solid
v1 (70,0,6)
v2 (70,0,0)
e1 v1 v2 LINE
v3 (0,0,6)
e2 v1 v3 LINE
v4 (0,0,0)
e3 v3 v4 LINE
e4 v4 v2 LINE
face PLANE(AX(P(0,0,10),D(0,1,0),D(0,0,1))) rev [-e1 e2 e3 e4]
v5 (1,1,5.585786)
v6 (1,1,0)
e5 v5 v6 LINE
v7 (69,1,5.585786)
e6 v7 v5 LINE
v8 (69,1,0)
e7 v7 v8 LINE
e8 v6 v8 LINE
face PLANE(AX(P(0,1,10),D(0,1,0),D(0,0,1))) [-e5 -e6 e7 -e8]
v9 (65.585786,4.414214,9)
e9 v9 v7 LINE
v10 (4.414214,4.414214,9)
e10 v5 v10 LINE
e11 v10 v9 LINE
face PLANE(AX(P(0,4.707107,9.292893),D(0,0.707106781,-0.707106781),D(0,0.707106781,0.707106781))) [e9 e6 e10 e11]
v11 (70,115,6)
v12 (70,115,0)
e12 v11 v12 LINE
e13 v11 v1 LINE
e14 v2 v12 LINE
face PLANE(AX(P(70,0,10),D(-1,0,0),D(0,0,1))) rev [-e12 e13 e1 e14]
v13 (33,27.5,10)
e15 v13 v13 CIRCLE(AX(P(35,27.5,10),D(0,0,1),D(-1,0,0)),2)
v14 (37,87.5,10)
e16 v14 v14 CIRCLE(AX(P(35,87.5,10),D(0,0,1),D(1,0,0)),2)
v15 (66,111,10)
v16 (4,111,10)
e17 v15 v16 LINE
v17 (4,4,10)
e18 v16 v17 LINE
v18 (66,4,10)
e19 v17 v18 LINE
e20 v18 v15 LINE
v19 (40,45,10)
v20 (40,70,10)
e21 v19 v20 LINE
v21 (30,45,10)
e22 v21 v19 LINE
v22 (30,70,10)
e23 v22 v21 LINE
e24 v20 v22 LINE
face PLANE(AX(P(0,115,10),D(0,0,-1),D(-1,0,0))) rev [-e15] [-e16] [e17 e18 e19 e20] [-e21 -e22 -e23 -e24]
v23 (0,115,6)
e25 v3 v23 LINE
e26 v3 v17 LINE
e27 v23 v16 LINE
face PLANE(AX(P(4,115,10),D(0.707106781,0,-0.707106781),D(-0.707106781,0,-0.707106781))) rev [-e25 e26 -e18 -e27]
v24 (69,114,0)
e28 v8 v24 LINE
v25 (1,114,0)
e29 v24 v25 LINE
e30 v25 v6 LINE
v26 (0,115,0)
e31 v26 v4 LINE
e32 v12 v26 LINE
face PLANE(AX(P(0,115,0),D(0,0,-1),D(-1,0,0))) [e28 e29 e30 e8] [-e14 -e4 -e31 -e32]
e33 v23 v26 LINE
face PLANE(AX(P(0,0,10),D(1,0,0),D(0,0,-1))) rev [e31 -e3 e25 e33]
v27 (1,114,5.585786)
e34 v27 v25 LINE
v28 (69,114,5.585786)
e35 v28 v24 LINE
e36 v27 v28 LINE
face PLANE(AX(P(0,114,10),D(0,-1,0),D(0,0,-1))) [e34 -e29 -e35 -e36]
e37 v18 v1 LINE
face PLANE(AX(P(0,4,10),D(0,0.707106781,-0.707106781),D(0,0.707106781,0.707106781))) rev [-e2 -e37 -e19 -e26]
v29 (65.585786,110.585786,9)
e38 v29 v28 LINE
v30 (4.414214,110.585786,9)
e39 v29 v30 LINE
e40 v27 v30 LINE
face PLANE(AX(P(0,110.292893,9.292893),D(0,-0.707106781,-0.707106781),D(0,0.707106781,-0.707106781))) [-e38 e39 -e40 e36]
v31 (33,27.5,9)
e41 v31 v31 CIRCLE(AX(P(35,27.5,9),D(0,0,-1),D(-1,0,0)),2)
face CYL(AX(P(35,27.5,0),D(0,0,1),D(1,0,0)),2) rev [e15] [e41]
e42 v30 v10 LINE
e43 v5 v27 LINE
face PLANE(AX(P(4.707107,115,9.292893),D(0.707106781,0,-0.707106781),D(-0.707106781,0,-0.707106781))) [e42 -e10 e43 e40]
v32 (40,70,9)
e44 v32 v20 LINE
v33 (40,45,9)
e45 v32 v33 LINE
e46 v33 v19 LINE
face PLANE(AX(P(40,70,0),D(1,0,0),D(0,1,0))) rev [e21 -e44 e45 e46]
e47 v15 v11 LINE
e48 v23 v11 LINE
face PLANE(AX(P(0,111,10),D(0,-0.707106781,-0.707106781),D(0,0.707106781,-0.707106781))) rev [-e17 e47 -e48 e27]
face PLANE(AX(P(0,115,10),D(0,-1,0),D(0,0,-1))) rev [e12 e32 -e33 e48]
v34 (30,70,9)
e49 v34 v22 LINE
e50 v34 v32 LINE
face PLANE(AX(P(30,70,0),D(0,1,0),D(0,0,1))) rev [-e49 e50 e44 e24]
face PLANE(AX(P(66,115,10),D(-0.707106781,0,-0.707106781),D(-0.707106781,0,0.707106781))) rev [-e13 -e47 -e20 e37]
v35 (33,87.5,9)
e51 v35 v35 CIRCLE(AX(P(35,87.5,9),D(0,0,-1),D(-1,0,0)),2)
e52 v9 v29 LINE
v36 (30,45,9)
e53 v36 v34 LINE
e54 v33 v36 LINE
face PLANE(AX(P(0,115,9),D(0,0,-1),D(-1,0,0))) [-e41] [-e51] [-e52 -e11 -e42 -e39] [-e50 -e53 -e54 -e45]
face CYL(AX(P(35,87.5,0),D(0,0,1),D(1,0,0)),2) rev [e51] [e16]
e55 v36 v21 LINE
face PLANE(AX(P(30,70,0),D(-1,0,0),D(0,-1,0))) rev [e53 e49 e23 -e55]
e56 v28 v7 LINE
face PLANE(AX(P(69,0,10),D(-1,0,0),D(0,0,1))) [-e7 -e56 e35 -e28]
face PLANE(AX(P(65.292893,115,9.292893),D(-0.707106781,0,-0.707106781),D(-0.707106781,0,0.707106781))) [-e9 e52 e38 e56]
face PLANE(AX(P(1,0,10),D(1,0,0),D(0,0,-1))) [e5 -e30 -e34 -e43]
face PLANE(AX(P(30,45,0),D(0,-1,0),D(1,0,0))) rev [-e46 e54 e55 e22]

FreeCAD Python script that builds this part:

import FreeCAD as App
import Part
import Sketcher

V = App.Vector
Q = App.Units.Quantity


def edges_at(feature, points):
    """Names of the edges that pass closest to the given points."""
    edges = feature.Shape.Edges
    near = lambda p: min(range(len(edges)), key=lambda i: edges[i].distToShape(Part.Vertex(*p))[0])
    return sorted({f"Edge{near(p) + 1}" for p in points})


def faces_at(feature, points):
    """Names of the faces that lie closest to the given points."""
    faces = feature.Shape.Faces
    near = lambda p: min(range(len(faces)), key=lambda i: faces[i].distToShape(Part.Vertex(*p))[0])
    return sorted({f"Face{near(p) + 1}" for p in points})


def add_polygon(sketch, points):
    """Adds a closed chain of lines whose ends are joined by coincident constraints."""
    first, n = sketch.GeometryCount, len(points)
    for a, b in zip(points, points[1:] + points[:1]):
        sketch.addGeometry(Part.LineSegment(App.Vector(*a, 0), App.Vector(*b, 0)), False)
    for i in range(n):
        sketch.addConstraint(Sketcher.Constraint("Coincident", first + i, 2, first + (i + 1) % n, 1))

doc = App.newDocument("Part")
body = doc.addObject("PartDesign::Body", "Body")

# Sketch on XY plane
sketch1 = body.newObject("Sketcher::SketchObject", "Sketch")
sketch1.AttachmentSupport = (doc.getObject("XY_Plane"), [""])
sketch1.MapMode = "FlatFace"
add_polygon(sketch1, [(0, 115), (0, 0), (70, 0), (70, 115)])  # lines 0-3
sketch1.addConstraint(Sketcher.Constraint("Vertical", 0))
sketch1.addConstraint(Sketcher.Constraint("Horizontal", 1))
sketch1.addConstraint(Sketcher.Constraint("Vertical", 2))
sketch1.addConstraint(Sketcher.Constraint("Horizontal", 3))
sketch1.addConstraint(Sketcher.Constraint("Coincident", 0, 2, -1, 1))
sketch1.addConstraint(Sketcher.Constraint("DistanceX", 1, 1, 1, 2, Q("70 mm")))
sketch1.addConstraint(Sketcher.Constraint("DistanceY", 0, 2, 0, 1, Q("115 mm")))
pad1 = body.newObject("PartDesign::Pad", "Pad")
pad1.Profile = sketch1
pad1.Length = 10
doc.recompute()

chamfer = body.newObject("PartDesign::Chamfer", "Chamfer")
chamfer.Base = (pad1, edges_at(pad1, [
    (70, 57.5, 10),
    (35, 115, 10),
    (0, 57.5, 10),
    (35, 0, 10),
]))
chamfer.Size = 4
doc.recompute()

thickness = body.newObject("PartDesign::Thickness", "Thickness")
thickness.Base = (chamfer, faces_at(chamfer, [(35, 57.5, 0)]))
thickness.Value = 1
thickness.Reversed = True
thickness.Join = "Intersection"

# Sketch on XY plane
sketch2 = body.newObject("Sketcher::SketchObject", "Sketch001")
sketch2.AttachmentSupport = (doc.getObject("XY_Plane"), [""])
sketch2.MapMode = "FlatFace"
sketch2.AttachmentOffset = App.Placement(V(0, 0, 10), App.Rotation())
sketch2.addGeometry(Part.Circle(V(35, 87.5, 0), V(0, 0, 1), 2), False)  # 0
sketch2.addGeometry(Part.Circle(V(35, 27.5, 0), V(0, 0, 1), 2), False)  # 1
add_polygon(sketch2, [(30, 70), (30, 45), (40, 45), (40, 70)])  # lines 2-5
sketch2.addConstraint(Sketcher.Constraint("Vertical", 2))
sketch2.addConstraint(Sketcher.Constraint("Horizontal", 3))
sketch2.addConstraint(Sketcher.Constraint("Vertical", 4))
sketch2.addConstraint(Sketcher.Constraint("Horizontal", 5))
sketch2.addConstraint(Sketcher.Constraint("Equal", 0, 1))
sketch2.addConstraint(Sketcher.Constraint("Vertical", 0, 3, 1, 3))
sketch2.addConstraint(Sketcher.Constraint("Diameter", 0, Q("4 mm")))
sketch2.addConstraint(Sketcher.Constraint("DistanceX", 3, 1, 3, 2, Q("10 mm")))
sketch2.addConstraint(Sketcher.Constraint("DistanceY", 2, 2, 2, 1, Q("25 mm")))
sketch2.addConstraint(Sketcher.Constraint("DistanceX", -1, 1, 0, 3, Q("35 mm")))
sketch2.addConstraint(Sketcher.Constraint("DistanceX", -1, 1, 2, 2, Q("30 mm")))
sketch2.addConstraint(Sketcher.Constraint("DistanceY", -1, 1, 2, 2, Q("45 mm")))
sketch2.addConstraint(Sketcher.Constraint("DistanceY", 1, 3, 0, 3, Q("60 mm")))
sketch2.addConstraint(Sketcher.Constraint("DistanceY", -1, 1, 0, 3, Q("87.5 mm")))
pocket1 = body.newObject("PartDesign::Pocket", "Pocket")
pocket1.Profile = sketch2
pocket1.Type = "ThroughAll"

doc.recompute()
